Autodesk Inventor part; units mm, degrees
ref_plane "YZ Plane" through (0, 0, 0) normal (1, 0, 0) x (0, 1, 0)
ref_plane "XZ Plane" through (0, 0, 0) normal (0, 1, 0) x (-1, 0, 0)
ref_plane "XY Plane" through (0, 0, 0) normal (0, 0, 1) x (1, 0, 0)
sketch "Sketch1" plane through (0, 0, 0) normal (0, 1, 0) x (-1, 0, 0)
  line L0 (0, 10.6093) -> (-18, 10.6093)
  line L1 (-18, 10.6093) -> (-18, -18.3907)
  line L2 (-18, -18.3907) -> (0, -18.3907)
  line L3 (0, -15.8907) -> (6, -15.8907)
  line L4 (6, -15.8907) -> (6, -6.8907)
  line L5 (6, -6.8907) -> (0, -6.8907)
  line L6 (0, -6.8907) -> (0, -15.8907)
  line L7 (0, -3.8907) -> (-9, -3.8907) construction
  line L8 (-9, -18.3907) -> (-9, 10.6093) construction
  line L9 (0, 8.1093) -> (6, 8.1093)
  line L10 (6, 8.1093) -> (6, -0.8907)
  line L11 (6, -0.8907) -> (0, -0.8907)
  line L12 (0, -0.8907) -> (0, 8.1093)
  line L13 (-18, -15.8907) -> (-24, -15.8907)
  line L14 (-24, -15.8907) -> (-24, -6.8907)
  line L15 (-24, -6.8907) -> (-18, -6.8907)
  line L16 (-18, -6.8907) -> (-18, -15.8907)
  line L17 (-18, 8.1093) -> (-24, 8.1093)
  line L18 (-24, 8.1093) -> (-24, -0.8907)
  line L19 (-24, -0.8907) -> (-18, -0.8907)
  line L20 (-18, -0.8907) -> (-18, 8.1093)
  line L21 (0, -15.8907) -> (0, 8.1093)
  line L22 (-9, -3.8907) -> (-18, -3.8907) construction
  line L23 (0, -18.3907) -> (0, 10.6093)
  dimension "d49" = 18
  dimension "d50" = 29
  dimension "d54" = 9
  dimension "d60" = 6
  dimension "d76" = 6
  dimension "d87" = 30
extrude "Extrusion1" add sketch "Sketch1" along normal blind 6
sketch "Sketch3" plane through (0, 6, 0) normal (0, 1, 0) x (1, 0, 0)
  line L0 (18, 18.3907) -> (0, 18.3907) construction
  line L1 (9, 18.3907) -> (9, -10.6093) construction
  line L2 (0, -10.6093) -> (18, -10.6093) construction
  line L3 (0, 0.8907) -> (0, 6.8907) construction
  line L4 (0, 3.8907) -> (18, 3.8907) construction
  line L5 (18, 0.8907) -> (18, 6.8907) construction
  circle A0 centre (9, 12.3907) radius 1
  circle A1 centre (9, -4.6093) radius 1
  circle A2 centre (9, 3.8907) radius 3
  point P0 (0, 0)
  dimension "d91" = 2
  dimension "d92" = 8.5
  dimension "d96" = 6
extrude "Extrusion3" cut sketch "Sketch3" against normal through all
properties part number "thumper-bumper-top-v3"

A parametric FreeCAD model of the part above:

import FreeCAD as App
import Part
import Sketcher

V = App.Vector
Q = App.Units.Quantity


def add_polygon(sketch, points):
    """Adds a closed chain of lines whose ends are joined by coincident constraints."""
    first, n = sketch.GeometryCount, len(points)
    for a, b in zip(points, points[1:] + points[:1]):
        sketch.addGeometry(Part.LineSegment(App.Vector(*a, 0), App.Vector(*b, 0)), False)
    for i in range(n):
        sketch.addConstraint(Sketcher.Constraint("Coincident", first + i, 2, first + (i + 1) % n, 1))

doc = App.newDocument("Part")
params = doc.addObject("Spreadsheet::Sheet", "Params")
for row, (alias, value) in enumerate([
    ("sketch1_width", "18 mm"),
    ("sketch1_width2", "6 mm"),
    ("sketch1_height", "9 mm"),
    ("sketch1_height2", "2.5 mm"),
    ("pad1_length", "6 mm"),
    ("sketch2_diameter", "2 mm"),
    ("sketch2_diameter2", "6 mm"),
], start=1):
    params.set(f"A{row}", alias)
    params.set(f"B{row}", "=" + value)
    params.setAlias(f"B{row}", alias)

body = doc.addObject("PartDesign::Body", "Body")

sketch1 = body.newObject("Sketcher::SketchObject", "Sketch")
sketch1.AttachmentSupport = (doc.getObject("XZ_Plane"), [""])
sketch1.MapMode = "FlatFace"
add_polygon(sketch1, [(0, 8.1), (0, 10.6), (18, 10.6), (18, 8.1), (24, 8.1), (24, -0.9), (18, -0.9), (18, -6.9), (24, -6.9), (24, -15.9), (18, -15.9), (18, -18.4), (0, -18.4), (0, -15.9), (-6, -15.9), (-6, -6.9), (0, -6.9), (0, -0.9), (-6, -0.9), (-6, 8.1)])
sketch1.addConstraint(Sketcher.Constraint("Vertical", 0))
sketch1.addConstraint(Sketcher.Constraint("Horizontal", 1))
sketch1.addConstraint(Sketcher.Constraint("Vertical", 2))
sketch1.addConstraint(Sketcher.Constraint("Horizontal", 3))
sketch1.addConstraint(Sketcher.Constraint("Vertical", 4))
sketch1.addConstraint(Sketcher.Constraint("Horizontal", 5))
sketch1.addConstraint(Sketcher.Constraint("Vertical", 6))
sketch1.addConstraint(Sketcher.Constraint("Horizontal", 7))
sketch1.addConstraint(Sketcher.Constraint("Vertical", 8))
sketch1.addConstraint(Sketcher.Constraint("Horizontal", 9))
sketch1.addConstraint(Sketcher.Constraint("Vertical", 10))
sketch1.addConstraint(Sketcher.Constraint("Horizontal", 11))
sketch1.addConstraint(Sketcher.Constraint("Vertical", 12))
sketch1.addConstraint(Sketcher.Constraint("Horizontal", 13))
sketch1.addConstraint(Sketcher.Constraint("Vertical", 14))
sketch1.addConstraint(Sketcher.Constraint("Horizontal", 15))
sketch1.addConstraint(Sketcher.Constraint("Vertical", 16))
sketch1.addConstraint(Sketcher.Constraint("Horizontal", 17))
sketch1.addConstraint(Sketcher.Constraint("Vertical", 18))
sketch1.addConstraint(Sketcher.Constraint("Horizontal", 19))
sketch1.addConstraint(Sketcher.Constraint("PointOnObject", 0, 2, -2))
sketch1.addConstraint(Sketcher.Constraint("PointOnObject", 11, 2, -2))
sketch1.addConstraint(Sketcher.Constraint("PointOnObject", 15, 2, -2))
sketch1.addConstraint(Sketcher.Constraint("Horizontal", 9, 2, 12, 2))
sketch1.addConstraint(Sketcher.Constraint("Horizontal", 7, 2, 14, 2))
sketch1.addConstraint(Sketcher.Constraint("Horizontal", 5, 2, 16, 2))
sketch1.addConstraint(Sketcher.Constraint("Horizontal", 3, 2, 18, 2))
sketch1.addConstraint(Sketcher.Constraint("Vertical", 2, 2, 5, 2))
sketch1.addConstraint(Sketcher.Constraint("Vertical", 4, 2, 7, 2))
sketch1.addConstraint(Sketcher.Constraint("Vertical", 6, 2, 9, 2))
sketch1.addConstraint(Sketcher.Constraint("Vertical", 14, 2, 17, 2))
sketch1.addConstraint(Sketcher.Constraint("Equal", 9, 13))
sketch1.addConstraint(Sketcher.Constraint("Equal", 19, 6))
sketch1.addConstraint(Sketcher.Constraint("Equal", 4, 8))
sketch1.addConstraint(Sketcher.Constraint("Equal", 2, 10))
sketch1.addConstraint(Sketcher.Constraint("DistanceX", 1, 1, 1, 2, Q("18 mm")))
sketch1.addConstraint(Sketcher.Constraint("DistanceX", 3, 1, 3, 2, Q("6 mm")))
sketch1.addConstraint(Sketcher.Constraint("DistanceY", 4, 2, 4, 1, Q("9 mm")))
sketch1.addConstraint(Sketcher.Constraint("DistanceY", 0, 1, 0, 2, Q("2.5 mm")))
sketch1.addConstraint(Sketcher.Constraint("DistanceY", -1, 1, 0, 2, Q("10.6093 mm")))
sketch1.setExpression("Constraints[55]", "Params.sketch1_width")
sketch1.setExpression("Constraints[56]", "Params.sketch1_width2")
sketch1.setExpression("Constraints[57]", "Params.sketch1_height")
sketch1.setExpression("Constraints[58]", "Params.sketch1_height2")
pad1 = body.newObject("PartDesign::Pad", "Pad")
pad1.Profile = sketch1
pad1.setExpression("Length", "Params.pad1_length")
pad1.Reversed = True

sketch2 = body.newObject("Sketcher::SketchObject", "Sketch001")
sketch2.AttachmentSupport = (doc.getObject("XZ_Plane"), [""])
sketch2.MapMode = "FlatFace"
sketch2.AttachmentOffset = App.Placement(V(0, 0, -6), App.Rotation())
sketch2.addGeometry(Part.Circle(V(9, -12.4, 0), V(0, 0, 1), 1), False)
sketch2.addGeometry(Part.Circle(V(9, 4.6, 0), V(0, 0, 1), 1), False)
sketch2.addGeometry(Part.Circle(V(9, -3.9, 0), V(0, 0, 1), 3), False)
sketch2.addConstraint(Sketcher.Constraint("Equal", 0, 1))
sketch2.addConstraint(Sketcher.Constraint("Vertical", 0, 3, 1, 3))
sketch2.addConstraint(Sketcher.Constraint("Vertical", 1, 3, 2, 3))
sketch2.addConstraint(Sketcher.Constraint("Diameter", 0, Q("2 mm")))
sketch2.addConstraint(Sketcher.Constraint("Diameter", 2, Q("6 mm")))
sketch2.addConstraint(Sketcher.Constraint("DistanceY", 0, 3, 2, 3, Q("8.5 mm")))
sketch2.addConstraint(Sketcher.Constraint("DistanceY", 2, 3, 1, 3, Q("8.5 mm")))
sketch2.addConstraint(Sketcher.Constraint("DistanceX", -1, 1, 0, 3, Q("9 mm")))
sketch2.addConstraint(Sketcher.Constraint("DistanceY", 0, 3, -1, 1, Q("12.3907 mm")))
sketch2.setExpression("Constraints[3]", "Params.sketch2_diameter")
sketch2.setExpression("Constraints[4]", "Params.sketch2_diameter2")
pocket1 = body.newObject("PartDesign::Pocket", "Pocket")
pocket1.Profile = sketch2
pocket1.Type = "ThroughAll"
pocket1.Reversed = True

doc.recompute()
